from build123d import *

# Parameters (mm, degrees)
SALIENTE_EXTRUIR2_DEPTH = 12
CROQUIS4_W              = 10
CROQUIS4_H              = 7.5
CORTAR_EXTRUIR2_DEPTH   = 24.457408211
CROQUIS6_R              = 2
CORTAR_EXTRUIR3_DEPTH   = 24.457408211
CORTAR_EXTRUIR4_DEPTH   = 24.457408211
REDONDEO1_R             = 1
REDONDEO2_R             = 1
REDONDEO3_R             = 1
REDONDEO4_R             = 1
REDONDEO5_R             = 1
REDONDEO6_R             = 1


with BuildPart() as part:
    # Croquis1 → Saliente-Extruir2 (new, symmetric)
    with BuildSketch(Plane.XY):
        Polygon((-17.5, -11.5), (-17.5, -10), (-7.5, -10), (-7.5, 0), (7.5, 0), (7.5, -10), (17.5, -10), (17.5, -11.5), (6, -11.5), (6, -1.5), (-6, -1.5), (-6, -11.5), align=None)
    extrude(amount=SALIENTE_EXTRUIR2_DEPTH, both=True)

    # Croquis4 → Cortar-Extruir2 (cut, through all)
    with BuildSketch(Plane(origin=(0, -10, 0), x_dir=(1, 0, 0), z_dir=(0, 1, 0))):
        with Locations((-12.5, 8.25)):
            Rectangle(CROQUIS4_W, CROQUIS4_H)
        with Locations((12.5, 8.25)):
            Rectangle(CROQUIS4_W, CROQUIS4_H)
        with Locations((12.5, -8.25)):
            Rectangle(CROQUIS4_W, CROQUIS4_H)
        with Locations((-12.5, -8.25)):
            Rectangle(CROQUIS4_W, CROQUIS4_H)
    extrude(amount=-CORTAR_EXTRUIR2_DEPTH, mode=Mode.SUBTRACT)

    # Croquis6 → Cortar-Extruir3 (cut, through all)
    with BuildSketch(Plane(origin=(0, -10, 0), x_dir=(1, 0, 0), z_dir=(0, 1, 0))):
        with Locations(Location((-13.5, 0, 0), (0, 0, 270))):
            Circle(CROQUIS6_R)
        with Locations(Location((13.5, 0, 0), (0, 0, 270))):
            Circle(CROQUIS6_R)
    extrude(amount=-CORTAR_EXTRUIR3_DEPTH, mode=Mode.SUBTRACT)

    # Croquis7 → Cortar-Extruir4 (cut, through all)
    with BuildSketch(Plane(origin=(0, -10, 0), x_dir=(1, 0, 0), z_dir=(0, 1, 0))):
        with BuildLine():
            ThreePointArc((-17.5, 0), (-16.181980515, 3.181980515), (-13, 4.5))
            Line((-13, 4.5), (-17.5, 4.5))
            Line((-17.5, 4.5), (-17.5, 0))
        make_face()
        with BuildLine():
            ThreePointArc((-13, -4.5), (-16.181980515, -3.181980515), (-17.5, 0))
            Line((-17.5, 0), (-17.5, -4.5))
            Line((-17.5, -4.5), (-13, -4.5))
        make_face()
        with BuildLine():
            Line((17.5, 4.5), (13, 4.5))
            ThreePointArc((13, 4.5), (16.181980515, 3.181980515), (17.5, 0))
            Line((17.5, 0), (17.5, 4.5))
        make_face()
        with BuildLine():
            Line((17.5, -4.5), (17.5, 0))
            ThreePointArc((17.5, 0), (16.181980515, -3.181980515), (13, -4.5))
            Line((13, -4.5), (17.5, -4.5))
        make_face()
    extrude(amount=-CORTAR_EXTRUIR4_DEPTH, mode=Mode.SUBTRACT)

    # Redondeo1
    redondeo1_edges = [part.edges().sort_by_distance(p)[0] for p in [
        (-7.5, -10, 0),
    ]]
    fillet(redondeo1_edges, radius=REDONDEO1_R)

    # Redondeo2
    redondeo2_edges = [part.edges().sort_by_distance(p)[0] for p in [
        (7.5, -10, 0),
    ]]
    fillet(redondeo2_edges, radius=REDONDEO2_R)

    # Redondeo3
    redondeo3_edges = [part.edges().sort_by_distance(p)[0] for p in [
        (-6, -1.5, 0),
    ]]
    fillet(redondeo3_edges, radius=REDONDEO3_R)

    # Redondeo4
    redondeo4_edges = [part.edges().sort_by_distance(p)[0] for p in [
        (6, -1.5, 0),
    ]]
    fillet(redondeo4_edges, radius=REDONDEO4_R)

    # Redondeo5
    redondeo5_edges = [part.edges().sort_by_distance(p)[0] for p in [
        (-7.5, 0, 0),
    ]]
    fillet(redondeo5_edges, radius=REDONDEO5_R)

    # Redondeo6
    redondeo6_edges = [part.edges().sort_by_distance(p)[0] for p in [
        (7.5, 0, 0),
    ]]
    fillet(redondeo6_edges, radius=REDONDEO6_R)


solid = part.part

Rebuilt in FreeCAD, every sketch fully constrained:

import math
import FreeCAD as App
import Part
import Sketcher


def edges_at(feature, points):
    """Names of the edges that pass closest to the given points."""
    edges = feature.Shape.Edges
    near = lambda p: min(range(len(edges)), key=lambda i: edges[i].distToShape(Part.Vertex(*p))[0])
    return sorted({f"Edge{near(p) + 1}" for p in points})

doc = App.newDocument("Part")
params = doc.addObject("Spreadsheet::Sheet", "Params")
for row, (alias, value) in enumerate([
    ("sketch1_width", "12 mm"),
    ("sketch1_width2", "10 mm"),
    ("sketch1_width3", "15 mm"),
    ("sketch1_height", "1.5 mm"),
    ("pad1_length", "24 mm"),
    ("sketch2_width", "10 mm"),
    ("sketch2_height", "7.5 mm"),
    ("sketch3_diameter", "4 mm"),
    ("sketch4_radius", "4.5 mm"),
    ("fillet_radius", "1 mm"),
    ("fillet2_radius", "1 mm"),
    ("fillet3_radius", "1 mm"),
    ("fillet4_radius", "1 mm"),
    ("fillet5_radius", "1 mm"),
    ("fillet6_radius", "1 mm"),
], start=1):
    params.set(f"A{row}", alias)
    params.set(f"B{row}", "=" + value)
    params.setAlias(f"B{row}", alias)

body = doc.addObject("PartDesign::Body", "Body")

# Sketch on XY plane
sketch1 = body.newObject("Sketcher::SketchObject", "Sketch")
sketch1.AttachmentSupport = (doc.getObject("XY_Plane"), [""])
sketch1.MapMode = "FlatFace"
sketch1.addGeometry(Part.LineSegment(App.Vector(-17.5, -10, 0), App.Vector(-17.5, -11.5, 0)), False)
sketch1.addGeometry(Part.LineSegment(App.Vector(-17.5, -11.5, 0), App.Vector(-6, -11.5, 0)), False)
sketch1.addGeometry(Part.LineSegment(App.Vector(-6, -11.5, 0), App.Vector(-6, -1.5, 0)), False)
sketch1.addGeometry(Part.LineSegment(App.Vector(-6, -1.5, 0), App.Vector(6, -1.5, 0)), False)
sketch1.addGeometry(Part.LineSegment(App.Vector(6, -1.5, 0), App.Vector(6, -11.5, 0)), False)
sketch1.addGeometry(Part.LineSegment(App.Vector(6, -11.5, 0), App.Vector(17.5, -11.5, 0)), False)
sketch1.addGeometry(Part.LineSegment(App.Vector(17.5, -11.5, 0), App.Vector(17.5, -10, 0)), False)
sketch1.addGeometry(Part.LineSegment(App.Vector(17.5, -10, 0), App.Vector(7.5, -10, 0)), False)
sketch1.addGeometry(Part.LineSegment(App.Vector(7.5, -10, 0), App.Vector(7.5, 0, 0)), False)
sketch1.addGeometry(Part.LineSegment(App.Vector(7.5, 0, 0), App.Vector(-7.5, 0, 0)), False)
sketch1.addGeometry(Part.LineSegment(App.Vector(-7.5, 0, 0), App.Vector(-7.5, -10, 0)), False)
sketch1.addGeometry(Part.LineSegment(App.Vector(-7.5, -10, 0), App.Vector(-17.5, -10, 0)), False)
sketch1.addConstraint(Sketcher.Constraint("Coincident", 0, 2, 1, 1))
sketch1.addConstraint(Sketcher.Constraint("Coincident", 1, 2, 2, 1))
sketch1.addConstraint(Sketcher.Constraint("Coincident", 2, 2, 3, 1))
sketch1.addConstraint(Sketcher.Constraint("Coincident", 3, 2, 4, 1))
sketch1.addConstraint(Sketcher.Constraint("Coincident", 4, 2, 5, 1))
sketch1.addConstraint(Sketcher.Constraint("Coincident", 5, 2, 6, 1))
sketch1.addConstraint(Sketcher.Constraint("Coincident", 6, 2, 7, 1))
sketch1.addConstraint(Sketcher.Constraint("Coincident", 7, 2, 8, 1))
sketch1.addConstraint(Sketcher.Constraint("Coincident", 8, 2, 9, 1))
sketch1.addConstraint(Sketcher.Constraint("Coincident", 9, 2, 10, 1))
sketch1.addConstraint(Sketcher.Constraint("Coincident", 10, 2, 11, 1))
sketch1.addConstraint(Sketcher.Constraint("Coincident", 11, 2, 0, 1))
sketch1.addConstraint(Sketcher.Constraint("Vertical", 0))
sketch1.addConstraint(Sketcher.Constraint("Horizontal", 1))
sketch1.addConstraint(Sketcher.Constraint("Vertical", 2))
sketch1.addConstraint(Sketcher.Constraint("Horizontal", 3))
sketch1.addConstraint(Sketcher.Constraint("Vertical", 4))
sketch1.addConstraint(Sketcher.Constraint("Horizontal", 5))
sketch1.addConstraint(Sketcher.Constraint("Vertical", 6))
sketch1.addConstraint(Sketcher.Constraint("Horizontal", 7))
sketch1.addConstraint(Sketcher.Constraint("Vertical", 8))
sketch1.addConstraint(Sketcher.Constraint("Horizontal", 9))
sketch1.addConstraint(Sketcher.Constraint("Vertical", 10))
sketch1.addConstraint(Sketcher.Constraint("Horizontal", 11))
sketch1.addConstraint(Sketcher.Constraint("Symmetric", 8, 2, 9, 2, -1, 1))
sketch1.addConstraint(Sketcher.Constraint("Symmetric", 1, 2, 4, 2, -2))
sketch1.addConstraint(Sketcher.Constraint("Symmetric", 6, 2, 11, 2, -2))
sketch1.addConstraint(Sketcher.Constraint("Equal", 11, 2))
sketch1.addConstraint(Sketcher.Constraint("Equal", 4, 8))
sketch1.addConstraint(Sketcher.Constraint("DistanceX", 3, 1, 3, 2, 12.0))
sketch1.addConstraint(Sketcher.Constraint("DistanceX", 7, 2, 7, 1, 10.0))
sketch1.addConstraint(Sketcher.Constraint("DistanceX", 9, 2, 9, 1, 15.0))
sketch1.addConstraint(Sketcher.Constraint("DistanceY", 0, 2, 0, 1, 1.5))
sketch1.setExpression("Constraints[29]", "Params.sketch1_width")
sketch1.setExpression("Constraints[30]", "Params.sketch1_width2")
sketch1.setExpression("Constraints[31]", "Params.sketch1_width3")
sketch1.setExpression("Constraints[32]", "Params.sketch1_height")
pad1 = body.newObject("PartDesign::Pad", "Pad")
pad1.Profile = sketch1
pad1.setExpression("Length", "Params.pad1_length")
pad1.Midplane = True

# Sketch on XZ plane
sketch2 = body.newObject("Sketcher::SketchObject", "Sketch001")
sketch2.AttachmentSupport = (doc.getObject("XZ_Plane"), [""])
sketch2.MapMode = "FlatFace"
sketch2.AttachmentOffset = App.Placement(App.Vector(0, 0, 10), App.Rotation())
sketch2.addGeometry(Part.LineSegment(App.Vector(-17.5, -12, 0), App.Vector(-17.5, -4.5, 0)), False)
sketch2.addGeometry(Part.LineSegment(App.Vector(-17.5, -4.5, 0), App.Vector(-7.5, -4.5, 0)), False)
sketch2.addGeometry(Part.LineSegment(App.Vector(-7.5, -4.5, 0), App.Vector(-7.5, -12, 0)), False)
sketch2.addGeometry(Part.LineSegment(App.Vector(-7.5, -12, 0), App.Vector(-17.5, -12, 0)), False)
sketch2.addGeometry(Part.LineSegment(App.Vector(7.5, -12, 0), App.Vector(7.5, -4.5, 0)), False)
sketch2.addGeometry(Part.LineSegment(App.Vector(7.5, -4.5, 0), App.Vector(17.5, -4.5, 0)), False)
sketch2.addGeometry(Part.LineSegment(App.Vector(17.5, -4.5, 0), App.Vector(17.5, -12, 0)), False)
sketch2.addGeometry(Part.LineSegment(App.Vector(17.5, -12, 0), App.Vector(7.5, -12, 0)), False)
sketch2.addGeometry(Part.LineSegment(App.Vector(7.5, 4.5, 0), App.Vector(7.5, 12, 0)), False)
sketch2.addGeometry(Part.LineSegment(App.Vector(7.5, 12, 0), App.Vector(17.5, 12, 0)), False)
sketch2.addGeometry(Part.LineSegment(App.Vector(17.5, 12, 0), App.Vector(17.5, 4.5, 0)), False)
sketch2.addGeometry(Part.LineSegment(App.Vector(17.5, 4.5, 0), App.Vector(7.5, 4.5, 0)), False)
sketch2.addGeometry(Part.LineSegment(App.Vector(-17.5, 4.5, 0), App.Vector(-17.5, 12, 0)), False)
sketch2.addGeometry(Part.LineSegment(App.Vector(-17.5, 12, 0), App.Vector(-7.5, 12, 0)), False)
sketch2.addGeometry(Part.LineSegment(App.Vector(-7.5, 12, 0), App.Vector(-7.5, 4.5, 0)), False)
sketch2.addGeometry(Part.LineSegment(App.Vector(-7.5, 4.5, 0), App.Vector(-17.5, 4.5, 0)), False)
sketch2.addConstraint(Sketcher.Constraint("Coincident", 0, 2, 1, 1))
sketch2.addConstraint(Sketcher.Constraint("Coincident", 1, 2, 2, 1))
sketch2.addConstraint(Sketcher.Constraint("Coincident", 2, 2, 3, 1))
sketch2.addConstraint(Sketcher.Constraint("Coincident", 3, 2, 0, 1))
sketch2.addConstraint(Sketcher.Constraint("Coincident", 4, 2, 5, 1))
sketch2.addConstraint(Sketcher.Constraint("Coincident", 5, 2, 6, 1))
sketch2.addConstraint(Sketcher.Constraint("Coincident", 6, 2, 7, 1))
sketch2.addConstraint(Sketcher.Constraint("Coincident", 7, 2, 4, 1))
sketch2.addConstraint(Sketcher.Constraint("Coincident", 8, 2, 9, 1))
sketch2.addConstraint(Sketcher.Constraint("Coincident", 9, 2, 10, 1))
sketch2.addConstraint(Sketcher.Constraint("Coincident", 10, 2, 11, 1))
sketch2.addConstraint(Sketcher.Constraint("Coincident", 11, 2, 8, 1))
sketch2.addConstraint(Sketcher.Constraint("Coincident", 12, 2, 13, 1))
sketch2.addConstraint(Sketcher.Constraint("Coincident", 13, 2, 14, 1))
sketch2.addConstraint(Sketcher.Constraint("Coincident", 14, 2, 15, 1))
sketch2.addConstraint(Sketcher.Constraint("Coincident", 15, 2, 12, 1))
sketch2.addConstraint(Sketcher.Constraint("Vertical", 0))
sketch2.addConstraint(Sketcher.Constraint("Horizontal", 1))
sketch2.addConstraint(Sketcher.Constraint("Vertical", 2))
sketch2.addConstraint(Sketcher.Constraint("Horizontal", 3))
sketch2.addConstraint(Sketcher.Constraint("Vertical", 4))
sketch2.addConstraint(Sketcher.Constraint("Horizontal", 5))
sketch2.addConstraint(Sketcher.Constraint("Vertical", 6))
sketch2.addConstraint(Sketcher.Constraint("Horizontal", 7))
sketch2.addConstraint(Sketcher.Constraint("Vertical", 8))
sketch2.addConstraint(Sketcher.Constraint("Horizontal", 9))
sketch2.addConstraint(Sketcher.Constraint("Vertical", 10))
sketch2.addConstraint(Sketcher.Constraint("Horizontal", 11))
sketch2.addConstraint(Sketcher.Constraint("Vertical", 12))
sketch2.addConstraint(Sketcher.Constraint("Horizontal", 13))
sketch2.addConstraint(Sketcher.Constraint("Vertical", 14))
sketch2.addConstraint(Sketcher.Constraint("Horizontal", 15))
sketch2.addConstraint(Sketcher.Constraint("Symmetric", 2, 2, 8, 2, -1, 1))
sketch2.addConstraint(Sketcher.Constraint("Symmetric", 0, 2, 10, 2, -1, 1))
sketch2.addConstraint(Sketcher.Constraint("Symmetric", 6, 2, 12, 2, -1, 1))
sketch2.addConstraint(Sketcher.Constraint("Symmetric", 4, 2, 14, 2, -1, 1))
sketch2.addConstraint(Sketcher.Constraint("Symmetric", 1, 2, 4, 2, -2))
sketch2.addConstraint(Sketcher.Constraint("Symmetric", 3, 2, 6, 2, -2))
sketch2.addConstraint(Sketcher.Constraint("DistanceX", 1, 1, 1, 2, 10.0))
sketch2.addConstraint(Sketcher.Constraint("DistanceY", 0, 1, 0, 2, 7.5))
sketch2.addConstraint(Sketcher.Constraint("DistanceY", 2, 2, -1, 1, 12.0))
sketch2.addConstraint(Sketcher.Constraint("DistanceX", 1, 2, 4, 2, 15.0))
sketch2.setExpression("Constraints[38]", "Params.sketch2_width")
sketch2.setExpression("Constraints[39]", "Params.sketch2_height")
pocket1 = body.newObject("PartDesign::Pocket", "Pocket")
pocket1.Profile = sketch2
pocket1.Type = "ThroughAll"
pocket1.Reversed = True

# Sketch on XZ plane
sketch3 = body.newObject("Sketcher::SketchObject", "Sketch002")
sketch3.AttachmentSupport = (doc.getObject("XZ_Plane"), [""])
sketch3.MapMode = "FlatFace"
sketch3.AttachmentOffset = App.Placement(App.Vector(0, 0, 10), App.Rotation())
sketch3.addGeometry(Part.Circle(App.Vector(-13.5, 0, 0), App.Vector(0, 0, 1), 2), False)
sketch3.addGeometry(Part.Circle(App.Vector(13.5, 0, 0), App.Vector(0, 0, 1), 2), False)
sketch3.addConstraint(Sketcher.Constraint("Equal", 0, 1))
sketch3.addConstraint(Sketcher.Constraint("Symmetric", 0, 3, 1, 3, -1, 1))
sketch3.addConstraint(Sketcher.Constraint("PointOnObject", 0, 3, -1))
sketch3.addConstraint(Sketcher.Constraint("Diameter", 0, 4.0))
sketch3.addConstraint(Sketcher.Constraint("DistanceX", 0, 3, 1, 3, 27.0))
sketch3.setExpression("Constraints[3]", "Params.sketch3_diameter")
pocket2 = body.newObject("PartDesign::Pocket", "Pocket001")
pocket2.Profile = sketch3
pocket2.Type = "ThroughAll"
pocket2.Reversed = True

# Sketch on XZ plane
sketch4 = body.newObject("Sketcher::SketchObject", "Sketch003")
sketch4.AttachmentSupport = (doc.getObject("XZ_Plane"), [""])
sketch4.MapMode = "FlatFace"
sketch4.AttachmentOffset = App.Placement(App.Vector(0, 0, 10), App.Rotation())
sketch4.addGeometry(Part.ArcOfCircle(Part.Circle(App.Vector(-13, 0, 0), App.Vector(0, 0, 1), 4.5), math.radians(-180), math.radians(-90)), False)
sketch4.addGeometry(Part.LineSegment(App.Vector(-13, -4.5, 0), App.Vector(-17.5, -4.5, 0)), False)
sketch4.addGeometry(Part.LineSegment(App.Vector(-17.5, -4.5, 0), App.Vector(-17.5, 0, 0)), False)
sketch4.addGeometry(Part.ArcOfCircle(Part.Circle(App.Vector(-13, 0, 0), App.Vector(0, 0, 1), 4.5), math.radians(90), math.radians(180)), False)
sketch4.addGeometry(Part.LineSegment(App.Vector(-17.5, 0, 0), App.Vector(-17.5, 4.5, 0)), False)
sketch4.addGeometry(Part.LineSegment(App.Vector(-17.5, 4.5, 0), App.Vector(-13, 4.5, 0)), False)
sketch4.addGeometry(Part.LineSegment(App.Vector(17.5, -4.5, 0), App.Vector(13, -4.5, 0)), False)
sketch4.addGeometry(Part.ArcOfCircle(Part.Circle(App.Vector(13, 0, 0), App.Vector(0, 0, 1), 4.5), math.radians(-90), math.radians(0)), False)
sketch4.addGeometry(Part.LineSegment(App.Vector(17.5, 0, 0), App.Vector(17.5, -4.5, 0)), False)
sketch4.addGeometry(Part.LineSegment(App.Vector(17.5, 4.5, 0), App.Vector(17.5, 0, 0)), False)
sketch4.addGeometry(Part.ArcOfCircle(Part.Circle(App.Vector(13, 0, 0), App.Vector(0, 0, 1), 4.5), math.radians(0), math.radians(90)), False)
sketch4.addGeometry(Part.LineSegment(App.Vector(13, 4.5, 0), App.Vector(17.5, 4.5, 0)), False)
sketch4.addConstraint(Sketcher.Constraint("Tangent", 0, 2, 1, 1))
sketch4.addConstraint(Sketcher.Constraint("Coincident", 1, 2, 2, 1))
sketch4.addConstraint(Sketcher.Constraint("Tangent", 2, 2, 0, 1))
sketch4.addConstraint(Sketcher.Constraint("Tangent", 3, 2, 4, 1))
sketch4.addConstraint(Sketcher.Constraint("Coincident", 4, 2, 5, 1))
sketch4.addConstraint(Sketcher.Constraint("Tangent", 5, 2, 3, 1))
sketch4.addConstraint(Sketcher.Constraint("Tangent", 6, 2, 7, 1))
sketch4.addConstraint(Sketcher.Constraint("Tangent", 7, 2, 8, 1))
sketch4.addConstraint(Sketcher.Constraint("Coincident", 8, 2, 6, 1))
sketch4.addConstraint(Sketcher.Constraint("Tangent", 9, 2, 10, 1))
sketch4.addConstraint(Sketcher.Constraint("Tangent", 10, 2, 11, 1))
sketch4.addConstraint(Sketcher.Constraint("Coincident", 11, 2, 9, 1))
sketch4.addConstraint(Sketcher.Constraint("Horizontal", 1))
sketch4.addConstraint(Sketcher.Constraint("Vertical", 2))
sketch4.addConstraint(Sketcher.Constraint("Vertical", 4))
sketch4.addConstraint(Sketcher.Constraint("Horizontal", 5))
sketch4.addConstraint(Sketcher.Constraint("Horizontal", 6))
sketch4.addConstraint(Sketcher.Constraint("Vertical", 8))
sketch4.addConstraint(Sketcher.Constraint("Vertical", 9))
sketch4.addConstraint(Sketcher.Constraint("Horizontal", 11))
sketch4.addConstraint(Sketcher.Constraint("Coincident", 3, 3, 0, 3))
sketch4.addConstraint(Sketcher.Constraint("Coincident", 10, 3, 7, 3))
sketch4.addConstraint(Sketcher.Constraint("Equal", 0, 3))
sketch4.addConstraint(Sketcher.Constraint("Equal", 3, 7))
sketch4.addConstraint(Sketcher.Constraint("Equal", 7, 10))
sketch4.addConstraint(Sketcher.Constraint("Symmetric", 0, 3, 7, 3, -1, 1))
sketch4.addConstraint(Sketcher.Constraint("PointOnObject", 0, 3, -1))
sketch4.addConstraint(Sketcher.Constraint("Radius", 0, 4.5))
sketch4.addConstraint(Sketcher.Constraint("DistanceX", 0, 3, -1, 1, 13.0))
sketch4.setExpression("Constraints[27]", "Params.sketch4_radius")
pocket3 = body.newObject("PartDesign::Pocket", "Pocket002")
pocket3.Profile = sketch4
pocket3.Type = "ThroughAll"
pocket3.Reversed = True
doc.recompute()

fillet = body.newObject("PartDesign::Fillet", "Fillet")
fillet.Base = (pocket3, edges_at(pocket3, [(-7.5, -10, 0)]))
fillet.setExpression("Radius", "Params.fillet_radius")
doc.recompute()

fillet2 = body.newObject("PartDesign::Fillet", "Fillet001")
fillet2.Base = (fillet, edges_at(fillet, [(7.5, -10, 0)]))
fillet2.setExpression("Radius", "Params.fillet2_radius")
doc.recompute()

fillet3 = body.newObject("PartDesign::Fillet", "Fillet002")
fillet3.Base = (fillet2, edges_at(fillet2, [(-6, -1.5, 0)]))
fillet3.setExpression("Radius", "Params.fillet3_radius")
doc.recompute()

fillet4 = body.newObject("PartDesign::Fillet", "Fillet003")
fillet4.Base = (fillet3, edges_at(fillet3, [(6, -1.5, 0)]))
fillet4.setExpression("Radius", "Params.fillet4_radius")
doc.recompute()

fillet5 = body.newObject("PartDesign::Fillet", "Fillet004")
fillet5.Base = (fillet4, edges_at(fillet4, [(-7.5, 0, 0)]))
fillet5.setExpression("Radius", "Params.fillet5_radius")
doc.recompute()

fillet6 = body.newObject("PartDesign::Fillet", "Fillet005")
fillet6.Base = (fillet5, edges_at(fillet5, [(7.5, 0, 0)]))
fillet6.setExpression("Radius", "Params.fillet6_radius")

doc.recompute()
